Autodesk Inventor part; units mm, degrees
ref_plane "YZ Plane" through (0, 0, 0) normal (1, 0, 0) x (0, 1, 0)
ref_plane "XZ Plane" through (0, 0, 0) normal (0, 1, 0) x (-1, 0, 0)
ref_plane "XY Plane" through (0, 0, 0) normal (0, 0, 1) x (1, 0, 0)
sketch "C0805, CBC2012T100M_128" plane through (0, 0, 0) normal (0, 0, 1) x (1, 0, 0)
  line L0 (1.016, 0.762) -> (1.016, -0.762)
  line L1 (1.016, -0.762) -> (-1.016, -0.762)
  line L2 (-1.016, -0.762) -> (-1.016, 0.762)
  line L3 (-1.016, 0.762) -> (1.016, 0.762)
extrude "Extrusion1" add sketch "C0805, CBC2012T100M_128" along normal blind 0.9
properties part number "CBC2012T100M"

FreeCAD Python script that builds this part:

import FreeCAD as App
import Part
import Sketcher

V = App.Vector
Q = App.Units.Quantity


def add_polygon(sketch, points):
    """Adds a closed chain of lines whose ends are joined by coincident constraints."""
    first, n = sketch.GeometryCount, len(points)
    for a, b in zip(points, points[1:] + points[:1]):
        sketch.addGeometry(Part.LineSegment(App.Vector(*a, 0), App.Vector(*b, 0)), False)
    for i in range(n):
        sketch.addConstraint(Sketcher.Constraint("Coincident", first + i, 2, first + (i + 1) % n, 1))

doc = App.newDocument("Part")
body = doc.addObject("PartDesign::Body", "Body")

sketch1 = doc.addObject("Sketcher::SketchObject", "Sketch")
body.addObject(sketch1)
sketch1.AttachmentSupport = (doc.XY_Plane, [""])
sketch1.MapMode = "FlatFace"
add_polygon(sketch1, [(1, -0.8), (1, 0.8), (-1, 0.8), (-1, -0.8)])
sketch1.addConstraint(Sketcher.Constraint("Vertical", 0))
sketch1.addConstraint(Sketcher.Constraint("Horizontal", 1))
sketch1.addConstraint(Sketcher.Constraint("Vertical", 2))
sketch1.addConstraint(Sketcher.Constraint("Horizontal", 3))
sketch1.addConstraint(Sketcher.Constraint("Symmetric", 0, 2, 2, 2, -1, 1))
sketch1.addConstraint(Sketcher.Constraint("DistanceX", 1, 2, 1, 1, Q("0.08 in")))
sketch1.addConstraint(Sketcher.Constraint("DistanceY", 0, 1, 0, 2, Q("0.06 in")))
pad1 = doc.addObject("PartDesign::Pad", "Pad")
body.addObject(pad1)
pad1.Profile = sketch1
pad1.Length = 0.9

doc.recompute()
